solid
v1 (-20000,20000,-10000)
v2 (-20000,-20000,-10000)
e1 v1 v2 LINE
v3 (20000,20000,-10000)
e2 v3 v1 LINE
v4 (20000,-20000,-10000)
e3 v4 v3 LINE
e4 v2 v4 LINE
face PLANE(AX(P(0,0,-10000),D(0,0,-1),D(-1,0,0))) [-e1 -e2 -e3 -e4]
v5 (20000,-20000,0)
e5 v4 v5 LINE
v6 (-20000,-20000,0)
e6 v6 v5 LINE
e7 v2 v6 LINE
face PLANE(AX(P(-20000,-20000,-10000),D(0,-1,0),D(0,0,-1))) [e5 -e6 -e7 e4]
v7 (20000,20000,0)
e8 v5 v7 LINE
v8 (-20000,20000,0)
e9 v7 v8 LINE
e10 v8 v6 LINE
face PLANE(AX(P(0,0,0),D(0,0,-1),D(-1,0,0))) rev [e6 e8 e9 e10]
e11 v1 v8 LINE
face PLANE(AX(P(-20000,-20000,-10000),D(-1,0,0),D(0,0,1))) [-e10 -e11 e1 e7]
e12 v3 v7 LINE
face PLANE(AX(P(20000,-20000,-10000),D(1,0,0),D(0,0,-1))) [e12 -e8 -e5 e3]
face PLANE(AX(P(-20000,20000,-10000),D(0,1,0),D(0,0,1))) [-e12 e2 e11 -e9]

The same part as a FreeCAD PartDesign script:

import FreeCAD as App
import Part
import Sketcher

doc = App.newDocument("Part")
body = doc.addObject("PartDesign::Body", "Body")

sketch1 = doc.addObject("Sketcher::SketchObject", "Sketch")
body.addObject(sketch1)
sketch1.AttachmentSupport = (doc.XY_Plane, [""])
sketch1.MapMode = "FlatFace"
sketch1.addGeometry([
    Part.LineSegment(App.Vector(-20000, 20000, 0), App.Vector(-20000, -20000, 0)),
    Part.LineSegment(App.Vector(-20000, -20000, 0), App.Vector(20000, -20000, 0)),
    Part.LineSegment(App.Vector(20000, -20000, 0), App.Vector(20000, 20000, 0)),
    Part.LineSegment(App.Vector(20000, 20000, 0), App.Vector(-20000, 20000, 0)),
], False)
sketch1.addConstraint([
    Sketcher.Constraint("Coincident", 0, 2, 1, 1),
    Sketcher.Constraint("Coincident", 1, 2, 2, 1),
    Sketcher.Constraint("Coincident", 2, 2, 3, 1),
    Sketcher.Constraint("Coincident", 3, 2, 0, 1),
    Sketcher.Constraint("Vertical", 0),
    Sketcher.Constraint("Horizontal", 1),
    Sketcher.Constraint("Vertical", 2),
    Sketcher.Constraint("Horizontal", 3),
    Sketcher.Constraint("Symmetric", 0, 2, 2, 2, -1, 1),
    Sketcher.Constraint("Equal", 3, 0),
    Sketcher.Constraint("DistanceX", 1, 1, 1, 2, 40000.0),
])
pad1 = doc.addObject("PartDesign::Pad", "Pad")
body.addObject(pad1)
pad1.Profile = sketch1
pad1.Length = 10000
pad1.Reversed = True

doc.recompute()
